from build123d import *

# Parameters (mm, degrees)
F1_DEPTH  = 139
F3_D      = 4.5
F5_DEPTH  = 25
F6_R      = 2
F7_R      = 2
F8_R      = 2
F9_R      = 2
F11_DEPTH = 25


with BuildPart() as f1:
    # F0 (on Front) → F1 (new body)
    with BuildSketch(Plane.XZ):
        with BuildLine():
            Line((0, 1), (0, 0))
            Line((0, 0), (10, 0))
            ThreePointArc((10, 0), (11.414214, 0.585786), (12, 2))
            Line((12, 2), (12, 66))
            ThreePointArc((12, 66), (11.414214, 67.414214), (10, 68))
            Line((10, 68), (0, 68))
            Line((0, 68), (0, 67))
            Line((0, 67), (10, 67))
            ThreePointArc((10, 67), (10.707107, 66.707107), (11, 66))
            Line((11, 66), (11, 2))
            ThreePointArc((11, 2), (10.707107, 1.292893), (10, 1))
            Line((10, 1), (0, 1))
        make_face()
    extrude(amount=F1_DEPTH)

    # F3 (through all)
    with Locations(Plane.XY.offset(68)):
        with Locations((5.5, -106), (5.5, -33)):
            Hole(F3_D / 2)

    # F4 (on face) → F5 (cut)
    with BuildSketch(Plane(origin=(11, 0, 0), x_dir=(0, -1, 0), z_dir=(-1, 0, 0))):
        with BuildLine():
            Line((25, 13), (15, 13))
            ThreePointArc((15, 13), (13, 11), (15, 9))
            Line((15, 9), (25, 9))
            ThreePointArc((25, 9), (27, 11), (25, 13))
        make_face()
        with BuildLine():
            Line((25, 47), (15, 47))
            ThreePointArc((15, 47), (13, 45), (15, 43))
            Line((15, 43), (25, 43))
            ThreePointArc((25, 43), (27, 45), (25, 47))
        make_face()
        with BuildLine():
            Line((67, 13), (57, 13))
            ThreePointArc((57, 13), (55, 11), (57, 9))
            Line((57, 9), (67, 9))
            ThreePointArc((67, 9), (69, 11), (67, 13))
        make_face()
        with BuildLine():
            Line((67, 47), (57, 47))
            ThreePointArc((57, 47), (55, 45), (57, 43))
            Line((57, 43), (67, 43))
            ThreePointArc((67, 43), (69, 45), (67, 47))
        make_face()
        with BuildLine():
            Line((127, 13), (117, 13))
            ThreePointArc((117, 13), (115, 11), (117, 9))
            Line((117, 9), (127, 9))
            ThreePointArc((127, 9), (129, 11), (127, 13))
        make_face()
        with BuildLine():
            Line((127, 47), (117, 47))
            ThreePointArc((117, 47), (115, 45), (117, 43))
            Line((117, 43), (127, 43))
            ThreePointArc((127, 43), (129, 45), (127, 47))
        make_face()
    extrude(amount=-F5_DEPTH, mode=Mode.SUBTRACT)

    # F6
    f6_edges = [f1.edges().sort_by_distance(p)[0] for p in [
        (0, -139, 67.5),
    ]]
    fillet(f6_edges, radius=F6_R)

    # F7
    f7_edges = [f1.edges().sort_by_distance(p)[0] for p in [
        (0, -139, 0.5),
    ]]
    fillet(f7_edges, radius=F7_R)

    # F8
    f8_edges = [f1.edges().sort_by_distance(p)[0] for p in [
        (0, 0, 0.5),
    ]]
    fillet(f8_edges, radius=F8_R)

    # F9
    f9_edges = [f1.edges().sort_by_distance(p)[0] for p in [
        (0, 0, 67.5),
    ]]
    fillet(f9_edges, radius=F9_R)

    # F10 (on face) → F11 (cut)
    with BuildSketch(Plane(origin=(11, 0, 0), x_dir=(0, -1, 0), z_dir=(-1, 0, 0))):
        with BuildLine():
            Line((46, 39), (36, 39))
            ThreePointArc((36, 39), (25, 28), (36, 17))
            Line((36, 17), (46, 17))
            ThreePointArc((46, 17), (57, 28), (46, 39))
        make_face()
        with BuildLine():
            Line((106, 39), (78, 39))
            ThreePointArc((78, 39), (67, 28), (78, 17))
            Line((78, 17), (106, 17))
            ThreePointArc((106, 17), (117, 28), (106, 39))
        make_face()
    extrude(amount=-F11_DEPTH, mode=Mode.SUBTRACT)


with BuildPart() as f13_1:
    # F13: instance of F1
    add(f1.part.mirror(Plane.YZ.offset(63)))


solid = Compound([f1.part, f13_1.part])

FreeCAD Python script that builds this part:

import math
import FreeCAD as App
import Part
import Sketcher
Q = App.Units.Quantity


def edges_at(feature, points):
    """Names of the edges that pass closest to the given points."""
    edges = feature.Shape.Edges
    near = lambda p: min(range(len(edges)), key=lambda i: edges[i].distToShape(Part.Vertex(*p))[0])
    return sorted({f"Edge{near(p) + 1}" for p in points})

doc = App.newDocument("Part")
body = doc.addObject("PartDesign::Body", "Body")

# Sketch on XZ plane
sketch1 = doc.addObject("Sketcher::SketchObject", "Sketch")
body.addObject(sketch1)
sketch1.AttachmentSupport = (doc.XZ_Plane, [""])
sketch1.MapMode = "FlatFace"
sketch1.addGeometry([
    Part.LineSegment(App.Vector(0, 1, 0), App.Vector(0, 0, 0)),  # 0
    Part.LineSegment(App.Vector(0, 0, 0), App.Vector(10, 0, 0)),  # 1
    Part.ArcOfCircle(Part.Circle(App.Vector(10, 2, 0), App.Vector(0, 0, 1), 2), math.radians(-90), math.radians(0)),  # 2
    Part.LineSegment(App.Vector(12, 2, 0), App.Vector(12, 66, 0)),  # 3
    Part.ArcOfCircle(Part.Circle(App.Vector(10, 66, 0), App.Vector(0, 0, 1), 2), math.radians(0), math.radians(90)),  # 4
    Part.LineSegment(App.Vector(10, 68, 0), App.Vector(0, 68, 0)),  # 5
    Part.LineSegment(App.Vector(0, 68, 0), App.Vector(0, 67, 0)),  # 6
    Part.LineSegment(App.Vector(0, 67, 0), App.Vector(10, 67, 0)),  # 7
    Part.ArcOfCircle(Part.Circle(App.Vector(10, 66, 0), App.Vector(0, 0, 1), 1), math.radians(0), math.radians(90)),  # 8
    Part.LineSegment(App.Vector(11, 66, 0), App.Vector(11, 2, 0)),  # 9
    Part.ArcOfCircle(Part.Circle(App.Vector(10, 2, 0), App.Vector(0, 0, 1), 1), math.radians(-90), math.radians(0)),  # 10
    Part.LineSegment(App.Vector(10, 1, 0), App.Vector(0, 1, 0)),  # 11
], False)
sketch1.addConstraint([
    Sketcher.Constraint("Coincident", 0, 2, 1, 1),
    Sketcher.Constraint("Tangent", 1, 2, 2, 1),
    Sketcher.Constraint("Tangent", 2, 2, 3, 1),
    Sketcher.Constraint("Tangent", 3, 2, 4, 1),
    Sketcher.Constraint("Tangent", 4, 2, 5, 1),
    Sketcher.Constraint("Coincident", 5, 2, 6, 1),
    Sketcher.Constraint("Coincident", 6, 2, 7, 1),
    Sketcher.Constraint("Tangent", 7, 2, 8, 2),
    Sketcher.Constraint("Tangent", 8, 1, 9, 1),
    Sketcher.Constraint("Tangent", 9, 2, 10, 2),
    Sketcher.Constraint("Tangent", 10, 1, 11, 1),
    Sketcher.Constraint("Coincident", 11, 2, 0, 1),
    Sketcher.Constraint("Vertical", 0),
    Sketcher.Constraint("Horizontal", 1),
    Sketcher.Constraint("Vertical", 3),
    Sketcher.Constraint("Horizontal", 5),
    Sketcher.Constraint("Vertical", 6),
    Sketcher.Constraint("Horizontal", 7),
    Sketcher.Constraint("Vertical", 9),
    Sketcher.Constraint("Horizontal", 11),
    Sketcher.Constraint("Coincident", 0, 2, -1, 1),
    Sketcher.Constraint("Coincident", 8, 3, 4, 3),
    Sketcher.Constraint("Coincident", 10, 3, 2, 3),
    Sketcher.Constraint("Equal", 2, 4),
    Sketcher.Constraint("PointOnObject", 5, 2, -2),
    Sketcher.Constraint("Radius", 2, Q("1.999999 mm")),
    Sketcher.Constraint("Radius", 8, Q("0.999999 mm")),
    Sketcher.Constraint("DistanceX", 1, 1, 1, 2, Q("10 mm")),
    Sketcher.Constraint("DistanceY", 3, 1, 3, 2, Q("64 mm")),
])
pad1 = doc.addObject("PartDesign::Pad", "Pad")
body.addObject(pad1)
pad1.Profile = sketch1
pad1.Length = 139

# Sketch on XY plane
sketch2 = doc.addObject("Sketcher::SketchObject", "Sketch001")
body.addObject(sketch2)
sketch2.AttachmentSupport = (doc.XY_Plane, [""])
sketch2.MapMode = "FlatFace"
sketch2.AttachmentOffset = App.Placement(App.Vector(0, 0, 68), App.Rotation())
sketch2.addGeometry([
    Part.Circle(App.Vector(5.5, -106, 0), App.Vector(0, 0, 1), 2.2),
    Part.Circle(App.Vector(5.5, -33, 0), App.Vector(0, 0, 1), 2.2),
], False)
sketch2.addConstraint([
    Sketcher.Constraint("Equal", 0, 1),
    Sketcher.Constraint("Vertical", 0, 3, 1, 3),
    Sketcher.Constraint("Diameter", 0, Q("4.5 mm")),
    Sketcher.Constraint("DistanceY", 0, 3, -1, 1, Q("106 mm")),
    Sketcher.Constraint("DistanceY", 1, 3, -1, 1, Q("33 mm")),
    Sketcher.Constraint("DistanceX", -1, 1, 0, 3, Q("5.5 mm")),
])
doc.recompute()
hole = doc.addObject("PartDesign::Hole", "Hole")
body.addObject(hole)
hole.Profile = sketch2
hole.ThreadType = "None"
hole.Diameter = 4.5
hole.DepthType = "ThroughAll"

# Sketch on YZ plane
sketch3 = doc.addObject("Sketcher::SketchObject", "Sketch002")
body.addObject(sketch3)
sketch3.AttachmentSupport = (doc.YZ_Plane, [""])
sketch3.MapMode = "FlatFace"
sketch3.AttachmentOffset = App.Placement(App.Vector(0, 0, 11), App.Rotation())
sketch3.addGeometry([
    Part.LineSegment(App.Vector(-25, 13, 0), App.Vector(-15, 13, 0)),  # 0
    Part.ArcOfCircle(Part.Circle(App.Vector(-15, 11, 0), App.Vector(0, 0, 1), 2), math.radians(-90), math.radians(90)),  # 1
    Part.LineSegment(App.Vector(-15, 9, 0), App.Vector(-25, 9, 0)),  # 2
    Part.ArcOfCircle(Part.Circle(App.Vector(-25, 11, 0), App.Vector(0, 0, 1), 2), math.radians(90), math.radians(270)),  # 3
    Part.LineSegment(App.Vector(-25, 47, 0), App.Vector(-15, 47, 0)),  # 4
    Part.ArcOfCircle(Part.Circle(App.Vector(-15, 45, 0), App.Vector(0, 0, 1), 2), math.radians(-90), math.radians(90)),  # 5
    Part.LineSegment(App.Vector(-15, 43, 0), App.Vector(-25, 43, 0)),  # 6
    Part.ArcOfCircle(Part.Circle(App.Vector(-25, 45, 0), App.Vector(0, 0, 1), 2), math.radians(90), math.radians(270)),  # 7
    Part.LineSegment(App.Vector(-67, 13, 0), App.Vector(-57, 13, 0)),  # 8
    Part.ArcOfCircle(Part.Circle(App.Vector(-57, 11, 0), App.Vector(0, 0, 1), 2), math.radians(-90), math.radians(90)),  # 9
    Part.LineSegment(App.Vector(-57, 9, 0), App.Vector(-67, 9, 0)),  # 10
    Part.ArcOfCircle(Part.Circle(App.Vector(-67, 11, 0), App.Vector(0, 0, 1), 2), math.radians(90), math.radians(270)),  # 11
    Part.LineSegment(App.Vector(-67, 47, 0), App.Vector(-57, 47, 0)),  # 12
    Part.ArcOfCircle(Part.Circle(App.Vector(-57, 45, 0), App.Vector(0, 0, 1), 2), math.radians(-90), math.radians(90)),  # 13
    Part.LineSegment(App.Vector(-57, 43, 0), App.Vector(-67, 43, 0)),  # 14
    Part.ArcOfCircle(Part.Circle(App.Vector(-67, 45, 0), App.Vector(0, 0, 1), 2), math.radians(90), math.radians(270)),  # 15
    Part.LineSegment(App.Vector(-127, 13, 0), App.Vector(-117, 13, 0)),  # 16
    Part.ArcOfCircle(Part.Circle(App.Vector(-117, 11, 0), App.Vector(0, 0, 1), 2), math.radians(-90), math.radians(90)),  # 17
    Part.LineSegment(App.Vector(-117, 9, 0), App.Vector(-127, 9, 0)),  # 18
    Part.ArcOfCircle(Part.Circle(App.Vector(-127, 11, 0), App.Vector(0, 0, 1), 2), math.radians(90), math.radians(270)),  # 19
    Part.LineSegment(App.Vector(-127, 47, 0), App.Vector(-117, 47, 0)),  # 20
    Part.ArcOfCircle(Part.Circle(App.Vector(-117, 45, 0), App.Vector(0, 0, 1), 2), math.radians(-90), math.radians(90)),  # 21
    Part.LineSegment(App.Vector(-117, 43, 0), App.Vector(-127, 43, 0)),  # 22
    Part.ArcOfCircle(Part.Circle(App.Vector(-127, 45, 0), App.Vector(0, 0, 1), 2), math.radians(90), math.radians(270)),  # 23
], False)
sketch3.addConstraint([
    Sketcher.Constraint("Tangent", 0, 2, 1, 2),
    Sketcher.Constraint("Tangent", 1, 1, 2, 1),
    Sketcher.Constraint("Tangent", 2, 2, 3, 2),
    Sketcher.Constraint("Tangent", 3, 1, 0, 1),
    Sketcher.Constraint("Tangent", 4, 2, 5, 2),
    Sketcher.Constraint("Tangent", 5, 1, 6, 1),
    Sketcher.Constraint("Tangent", 6, 2, 7, 2),
    Sketcher.Constraint("Tangent", 7, 1, 4, 1),
    Sketcher.Constraint("Tangent", 8, 2, 9, 2),
    Sketcher.Constraint("Tangent", 9, 1, 10, 1),
    Sketcher.Constraint("Tangent", 10, 2, 11, 2),
    Sketcher.Constraint("Tangent", 11, 1, 8, 1),
    Sketcher.Constraint("Tangent", 12, 2, 13, 2),
    Sketcher.Constraint("Tangent", 13, 1, 14, 1),
    Sketcher.Constraint("Tangent", 14, 2, 15, 2),
    Sketcher.Constraint("Tangent", 15, 1, 12, 1),
    Sketcher.Constraint("Tangent", 16, 2, 17, 2),
    Sketcher.Constraint("Tangent", 17, 1, 18, 1),
    Sketcher.Constraint("Tangent", 18, 2, 19, 2),
    Sketcher.Constraint("Tangent", 19, 1, 16, 1),
    Sketcher.Constraint("Tangent", 20, 2, 21, 2),
    Sketcher.Constraint("Tangent", 21, 1, 22, 1),
    Sketcher.Constraint("Tangent", 22, 2, 23, 2),
    Sketcher.Constraint("Tangent", 23, 1, 20, 1),
    Sketcher.Constraint("Horizontal", 0),
    Sketcher.Constraint("Horizontal", 2),
    Sketcher.Constraint("Horizontal", 4),
    Sketcher.Constraint("Horizontal", 6),
    Sketcher.Constraint("Horizontal", 8),
    Sketcher.Constraint("Horizontal", 10),
    Sketcher.Constraint("Horizontal", 12),
    Sketcher.Constraint("Horizontal", 14),
    Sketcher.Constraint("Horizontal", 16),
    Sketcher.Constraint("Horizontal", 18),
    Sketcher.Constraint("Horizontal", 20),
    Sketcher.Constraint("Horizontal", 22),
    Sketcher.Constraint("Equal", 3, 5),
    Sketcher.Constraint("Equal", 7, 9),
    Sketcher.Constraint("Equal", 11, 13),
    Sketcher.Constraint("Equal", 15, 17),
    Sketcher.Constraint("Equal", 19, 21),
    Sketcher.Constraint("Horizontal", 3, 3, 9, 3),
    Sketcher.Constraint("Horizontal", 7, 3, 13, 3),
    Sketcher.Constraint("Horizontal", 11, 3, 17, 3),
    Sketcher.Constraint("Horizontal", 15, 3, 21, 3),
    Sketcher.Constraint("Vertical", 1, 3, 5, 3),
    Sketcher.Constraint("Vertical", 3, 3, 7, 3),
    Sketcher.Constraint("Vertical", 9, 3, 13, 3),
    Sketcher.Constraint("Vertical", 11, 3, 15, 3),
    Sketcher.Constraint("Vertical", 17, 3, 21, 3),
    Sketcher.Constraint("Vertical", 19, 3, 23, 3),
    Sketcher.Constraint("Equal", 6, 8),
    Sketcher.Constraint("Equal", 14, 16),
    Sketcher.Constraint("Radius", 1, Q("2 mm")),
    Sketcher.Constraint("DistanceX", 0, 1, 0, 2, Q("10 mm")),
    Sketcher.Constraint("DistanceX", 1, 3, -1, 1, Q("15 mm")),
    Sketcher.Constraint("DistanceY", -1, 1, 1, 3, Q("11 mm")),
    Sketcher.Constraint("DistanceY", -1, 1, 5, 3, Q("45 mm")),
    Sketcher.Constraint("DistanceX", 9, 3, -1, 1, Q("57 mm")),
    Sketcher.Constraint("DistanceX", 17, 3, -1, 1, Q("117 mm")),
])
pocket1 = doc.addObject("PartDesign::Pocket", "Pocket")
body.addObject(pocket1)
pocket1.Profile = sketch3
pocket1.Length = 25
pocket1.Reversed = True
doc.recompute()

fillet = doc.addObject("PartDesign::Fillet", "Fillet")
body.addObject(fillet)
fillet.Base = (pocket1, edges_at(pocket1, [(0, -139, 67.5)]))
fillet.Radius = 2
doc.recompute()

fillet2 = doc.addObject("PartDesign::Fillet", "Fillet001")
body.addObject(fillet2)
fillet2.Base = (fillet, edges_at(fillet, [(0, -139, 0.5)]))
fillet2.Radius = 2
doc.recompute()

fillet3 = doc.addObject("PartDesign::Fillet", "Fillet002")
body.addObject(fillet3)
fillet3.Base = (fillet2, edges_at(fillet2, [(0, 0, 0.5)]))
fillet3.Radius = 2
doc.recompute()

fillet4 = doc.addObject("PartDesign::Fillet", "Fillet003")
body.addObject(fillet4)
fillet4.Base = (fillet3, edges_at(fillet3, [(0, 0, 67.5)]))
fillet4.Radius = 2

# Sketch on YZ plane
sketch4 = doc.addObject("Sketcher::SketchObject", "Sketch003")
body.addObject(sketch4)
sketch4.AttachmentSupport = (doc.YZ_Plane, [""])
sketch4.MapMode = "FlatFace"
sketch4.AttachmentOffset = App.Placement(App.Vector(0, 0, 11), App.Rotation())
sketch4.addGeometry([
    Part.LineSegment(App.Vector(-46, 39, 0), App.Vector(-36, 39, 0)),  # 0
    Part.ArcOfCircle(Part.Circle(App.Vector(-36, 28, 0), App.Vector(0, 0, 1), 11), math.radians(-90), math.radians(90)),  # 1
    Part.LineSegment(App.Vector(-36, 17, 0), App.Vector(-46, 17, 0)),  # 2
    Part.ArcOfCircle(Part.Circle(App.Vector(-46, 28, 0), App.Vector(0, 0, 1), 11), math.radians(90), math.radians(270)),  # 3
    Part.LineSegment(App.Vector(-106, 39, 0), App.Vector(-78, 39, 0)),  # 4
    Part.ArcOfCircle(Part.Circle(App.Vector(-78, 28, 0), App.Vector(0, 0, 1), 11), math.radians(-90), math.radians(90)),  # 5
    Part.LineSegment(App.Vector(-78, 17, 0), App.Vector(-106, 17, 0)),  # 6
    Part.ArcOfCircle(Part.Circle(App.Vector(-106, 28, 0), App.Vector(0, 0, 1), 11), math.radians(90), math.radians(270)),  # 7
], False)
sketch4.addConstraint([
    Sketcher.Constraint("Tangent", 0, 2, 1, 2),
    Sketcher.Constraint("Tangent", 1, 1, 2, 1),
    Sketcher.Constraint("Tangent", 2, 2, 3, 2),
    Sketcher.Constraint("Tangent", 3, 1, 0, 1),
    Sketcher.Constraint("Tangent", 4, 2, 5, 2),
    Sketcher.Constraint("Tangent", 5, 1, 6, 1),
    Sketcher.Constraint("Tangent", 6, 2, 7, 2),
    Sketcher.Constraint("Tangent", 7, 1, 4, 1),
    Sketcher.Constraint("Horizontal", 0),
    Sketcher.Constraint("Horizontal", 2),
    Sketcher.Constraint("Horizontal", 4),
    Sketcher.Constraint("Horizontal", 6),
    Sketcher.Constraint("Equal", 3, 5),
    Sketcher.Constraint("Horizontal", 3, 3, 5, 3),
    Sketcher.Constraint("Radius", 1, Q("11 mm")),
    Sketcher.Constraint("DistanceX", 0, 1, 0, 2, Q("10 mm")),
    Sketcher.Constraint("DistanceX", 4, 1, 4, 2, Q("28 mm")),
    Sketcher.Constraint("DistanceX", 1, 3, -1, 1, Q("36 mm")),
    Sketcher.Constraint("DistanceY", -1, 1, 1, 3, Q("28 mm")),
    Sketcher.Constraint("DistanceX", 5, 3, -1, 1, Q("78 mm")),
])
pocket2 = doc.addObject("PartDesign::Pocket", "Pocket001")
body.addObject(pocket2)
pocket2.Profile = sketch4
pocket2.Length = 25
pocket2.Reversed = True
body2 = doc.addObject("PartDesign::Body", "Body001")
doc.recompute()

mirroring = doc.addObject("Part::Mirroring", "Mirroring")
mirroring.Source = body
mirroring.Base = App.Vector(63, 0, 0)
mirroring.Normal = App.Vector(1, 0, 0)
body2.BaseFeature = mirroring
doc.recompute()
mirroring.Visibility = False

doc.recompute()
